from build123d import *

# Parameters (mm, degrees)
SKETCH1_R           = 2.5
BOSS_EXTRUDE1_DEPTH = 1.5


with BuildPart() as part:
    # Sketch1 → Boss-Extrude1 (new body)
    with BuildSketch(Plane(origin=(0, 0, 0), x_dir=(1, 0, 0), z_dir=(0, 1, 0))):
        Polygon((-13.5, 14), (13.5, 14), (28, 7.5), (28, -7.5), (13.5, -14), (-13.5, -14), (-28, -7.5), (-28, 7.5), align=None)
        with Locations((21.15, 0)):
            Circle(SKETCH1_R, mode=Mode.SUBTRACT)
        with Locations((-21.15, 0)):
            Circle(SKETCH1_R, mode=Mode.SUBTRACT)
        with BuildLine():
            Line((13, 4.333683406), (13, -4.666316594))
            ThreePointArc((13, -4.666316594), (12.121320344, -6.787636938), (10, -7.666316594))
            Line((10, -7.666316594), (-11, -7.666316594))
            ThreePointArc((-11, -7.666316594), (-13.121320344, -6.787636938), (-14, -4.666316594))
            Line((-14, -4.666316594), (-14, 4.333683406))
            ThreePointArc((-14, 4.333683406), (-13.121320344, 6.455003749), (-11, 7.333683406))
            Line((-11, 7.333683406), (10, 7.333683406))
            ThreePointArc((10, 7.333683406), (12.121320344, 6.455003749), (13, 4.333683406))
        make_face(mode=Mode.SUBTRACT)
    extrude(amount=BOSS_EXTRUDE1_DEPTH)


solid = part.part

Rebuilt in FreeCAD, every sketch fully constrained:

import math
import FreeCAD as App
import Part
import Sketcher

V = App.Vector


def add_polygon(sketch, points):
    """Adds a closed chain of lines whose ends are joined by coincident constraints."""
    first, n = sketch.GeometryCount, len(points)
    for a, b in zip(points, points[1:] + points[:1]):
        sketch.addGeometry(Part.LineSegment(App.Vector(*a, 0), App.Vector(*b, 0)), False)
    for i in range(n):
        sketch.addConstraint(Sketcher.Constraint("Coincident", first + i, 2, first + (i + 1) % n, 1))

doc = App.newDocument("Part")
params = doc.addObject("Spreadsheet::Sheet", "Params")
for row, (alias, value) in enumerate([
    ("sketch1_diameter", "5 mm"),
    ("sketch1_radius", "3 mm"),
    ("sketch1_width", "27 mm"),
    ("sketch1_width2", "21 mm"),
    ("sketch1_height", "15 mm"),
    ("pad1_length", "1.5 mm"),
], start=1):
    params.set(f"A{row}", alias)
    params.set(f"B{row}", "=" + value)
    params.setAlias(f"B{row}", alias)

body = doc.addObject("PartDesign::Body", "Body")

sketch1 = body.newObject("Sketcher::SketchObject", "Sketch")
sketch1.AttachmentSupport = (doc.getObject("XZ_Plane"), [""])
sketch1.MapMode = "FlatFace"
add_polygon(sketch1, [(13.5, -14), (-13.5, -14), (-28, -7.5), (-28, 7.5), (-13.5, 14), (13.5, 14), (28, 7.5), (28, -7.5)])
sketch1.addGeometry(Part.LineSegment(V(13, -4.3, 0), V(13, 4.7, 0)), False)
sketch1.addGeometry(Part.ArcOfCircle(Part.Circle(V(10, 4.7, 0), V(0, 0, 1), 3), math.radians(0), math.radians(90)), False)
sketch1.addGeometry(Part.LineSegment(V(10, 7.7, 0), V(-11, 7.7, 0)), False)
sketch1.addGeometry(Part.ArcOfCircle(Part.Circle(V(-11, 4.7, 0), V(0, 0, 1), 3), math.radians(90), math.radians(180)), False)
sketch1.addGeometry(Part.LineSegment(V(-14, 4.7, 0), V(-14, -4.3, 0)), False)
sketch1.addGeometry(Part.ArcOfCircle(Part.Circle(V(-11, -4.3, 0), V(0, 0, 1), 3), math.radians(180), math.radians(270)), False)
sketch1.addGeometry(Part.LineSegment(V(-11, -7.3, 0), V(10, -7.3, 0)), False)
sketch1.addGeometry(Part.ArcOfCircle(Part.Circle(V(10, -4.3, 0), V(0, 0, 1), 3), math.radians(-90), math.radians(0)), False)
sketch1.addGeometry(Part.Circle(V(21.1, 0, 0), V(0, 0, 1), 2.5), False)
sketch1.addGeometry(Part.Circle(V(-21.1, 0, 0), V(0, 0, 1), 2.5), False)
sketch1.addConstraint([
    Sketcher.Constraint("Tangent", 8, 2, 9, 1),
    Sketcher.Constraint("Tangent", 9, 2, 10, 1),
    Sketcher.Constraint("Tangent", 10, 2, 11, 1),
    Sketcher.Constraint("Tangent", 11, 2, 12, 1),
    Sketcher.Constraint("Tangent", 12, 2, 13, 1),
    Sketcher.Constraint("Tangent", 13, 2, 14, 1),
    Sketcher.Constraint("Tangent", 14, 2, 15, 1),
    Sketcher.Constraint("Tangent", 15, 2, 8, 1),
    Sketcher.Constraint("Horizontal", 0),
    Sketcher.Constraint("Vertical", 2),
    Sketcher.Constraint("Horizontal", 4),
    Sketcher.Constraint("Vertical", 6),
    Sketcher.Constraint("Vertical", 8),
    Sketcher.Constraint("Horizontal", 10),
    Sketcher.Constraint("Vertical", 12),
    Sketcher.Constraint("Horizontal", 14),
    Sketcher.Constraint("Equal", 9, 11),
    Sketcher.Constraint("Equal", 11, 13),
    Sketcher.Constraint("Equal", 13, 15),
    Sketcher.Constraint("Equal", 16, 17),
    Sketcher.Constraint("Symmetric", 16, 3, 17, 3, -1, 1),
    Sketcher.Constraint("Symmetric", 0, 2, 4, 2, -1, 1),
    Sketcher.Constraint("Symmetric", 1, 2, 5, 2, -1, 1),
    Sketcher.Constraint("PointOnObject", 16, 3, -1),
    Sketcher.Constraint("Parallel", 3, 7),
    Sketcher.Constraint("Horizontal", 2, 2, 5, 2),
    Sketcher.Constraint("Horizontal", 1, 2, 6, 2),
    Sketcher.Constraint("Vertical", 0, 2, 3, 2),
    Sketcher.Constraint("Diameter", 16, 5.0),
    Sketcher.Constraint("Radius", 9, 3.0),
    Sketcher.Constraint("DistanceX", 0, 2, 0, 1, 27.0),
    Sketcher.Constraint("DistanceX", 10, 2, 10, 1, 21.0),
    Sketcher.Constraint("DistanceY", 2, 1, 2, 2, 15.0),
    Sketcher.Constraint("DistanceY", 8, 1, 8, 2, 9.0),
    Sketcher.Constraint("DistanceX", -1, 1, 9, 3, 10.0),
    Sketcher.Constraint("DistanceY", 0, 2, -1, 1, 14.0),
    Sketcher.Constraint("DistanceX", 1, 2, -1, 1, 28.0),
    Sketcher.Constraint("DistanceX", 17, 3, 16, 3, 42.3),
    Sketcher.Constraint("DistanceY", -1, 1, 9, 3, 4.666317),
])
sketch1.setExpression("Constraints[36]", "Params.sketch1_diameter")
sketch1.setExpression("Constraints[37]", "Params.sketch1_radius")
sketch1.setExpression("Constraints[38]", "Params.sketch1_width")
sketch1.setExpression("Constraints[39]", "Params.sketch1_width2")
sketch1.setExpression("Constraints[40]", "Params.sketch1_height")
pad1 = body.newObject("PartDesign::Pad", "Pad")
pad1.Profile = sketch1
pad1.setExpression("Length", "Params.pad1_length")
pad1.Reversed = True

doc.recompute()
